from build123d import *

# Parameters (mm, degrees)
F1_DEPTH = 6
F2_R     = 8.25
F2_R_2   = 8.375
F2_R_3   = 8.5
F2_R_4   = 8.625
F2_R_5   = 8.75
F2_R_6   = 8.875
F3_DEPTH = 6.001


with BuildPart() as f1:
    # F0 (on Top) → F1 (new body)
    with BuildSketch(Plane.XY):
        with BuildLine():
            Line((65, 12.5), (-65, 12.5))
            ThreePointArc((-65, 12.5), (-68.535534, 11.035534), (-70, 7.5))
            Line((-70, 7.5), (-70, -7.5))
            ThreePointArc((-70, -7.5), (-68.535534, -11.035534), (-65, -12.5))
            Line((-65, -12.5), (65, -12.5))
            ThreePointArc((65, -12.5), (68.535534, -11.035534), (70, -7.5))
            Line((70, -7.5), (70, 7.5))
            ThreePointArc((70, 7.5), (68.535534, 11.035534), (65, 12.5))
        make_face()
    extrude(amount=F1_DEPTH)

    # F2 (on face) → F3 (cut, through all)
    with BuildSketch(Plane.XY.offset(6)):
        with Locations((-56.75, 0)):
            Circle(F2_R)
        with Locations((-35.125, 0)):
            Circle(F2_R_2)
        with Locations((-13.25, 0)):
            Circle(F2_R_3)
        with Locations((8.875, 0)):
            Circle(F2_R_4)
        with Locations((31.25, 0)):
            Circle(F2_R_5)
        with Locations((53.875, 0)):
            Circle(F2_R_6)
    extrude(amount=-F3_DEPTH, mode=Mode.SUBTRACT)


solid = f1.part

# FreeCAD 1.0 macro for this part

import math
import FreeCAD as App
import Part
import Sketcher
from FreeCAD import Vector
Q = App.Units.Quantity

doc = App.newDocument("Part")
body = doc.addObject("PartDesign::Body", "Body")

sketch1 = body.newObject("Sketcher::SketchObject", "Sketch")
sketch1.AttachmentSupport = (doc.getObject("XY_Plane"), [""])
sketch1.MapMode = "FlatFace"
sketch1.addGeometry(Part.LineSegment(Vector(65, 12.5, 0), Vector(-65, 12.5, 0)), False)
sketch1.addGeometry(Part.ArcOfCircle(Part.Circle(Vector(-65, 7.5, 0), Vector(0, 0, 1), 5), math.radians(90), math.radians(180)), False)
sketch1.addGeometry(Part.LineSegment(Vector(-70, 7.5, 0), Vector(-70, -7.5, 0)), False)
sketch1.addGeometry(Part.ArcOfCircle(Part.Circle(Vector(-65, -7.5, 0), Vector(0, 0, 1), 5), math.radians(180), math.radians(270)), False)
sketch1.addGeometry(Part.LineSegment(Vector(-65, -12.5, 0), Vector(65, -12.5, 0)), False)
sketch1.addGeometry(Part.ArcOfCircle(Part.Circle(Vector(65, -7.5, 0), Vector(0, 0, 1), 5), math.radians(-90), math.radians(0)), False)
sketch1.addGeometry(Part.LineSegment(Vector(70, -7.5, 0), Vector(70, 7.5, 0)), False)
sketch1.addGeometry(Part.ArcOfCircle(Part.Circle(Vector(65, 7.5, 0), Vector(0, 0, 1), 5), math.radians(0), math.radians(90)), False)
sketch1.addConstraint(Sketcher.Constraint("Tangent", 0, 2, 1, 1))
sketch1.addConstraint(Sketcher.Constraint("Tangent", 1, 2, 2, 1))
sketch1.addConstraint(Sketcher.Constraint("Tangent", 2, 2, 3, 1))
sketch1.addConstraint(Sketcher.Constraint("Tangent", 3, 2, 4, 1))
sketch1.addConstraint(Sketcher.Constraint("Tangent", 4, 2, 5, 1))
sketch1.addConstraint(Sketcher.Constraint("Tangent", 5, 2, 6, 1))
sketch1.addConstraint(Sketcher.Constraint("Tangent", 6, 2, 7, 1))
sketch1.addConstraint(Sketcher.Constraint("Tangent", 7, 2, 0, 1))
sketch1.addConstraint(Sketcher.Constraint("Horizontal", 0))
sketch1.addConstraint(Sketcher.Constraint("Vertical", 2))
sketch1.addConstraint(Sketcher.Constraint("Horizontal", 4))
sketch1.addConstraint(Sketcher.Constraint("Vertical", 6))
sketch1.addConstraint(Sketcher.Constraint("Equal", 1, 3))
sketch1.addConstraint(Sketcher.Constraint("Equal", 3, 5))
sketch1.addConstraint(Sketcher.Constraint("Equal", 5, 7))
sketch1.addConstraint(Sketcher.Constraint("Symmetric", 1, 3, 5, 3, -1, 1))
sketch1.addConstraint(Sketcher.Constraint("Radius", 1, Q("5 mm")))
sketch1.addConstraint(Sketcher.Constraint("DistanceX", 0, 2, 0, 1, Q("130 mm")))
sketch1.addConstraint(Sketcher.Constraint("DistanceY", 2, 2, 2, 1, Q("15 mm")))
pad1 = body.newObject("PartDesign::Pad", "Pad")
pad1.Profile = sketch1
pad1.Length = 6

sketch2 = body.newObject("Sketcher::SketchObject", "Sketch001")
sketch2.AttachmentSupport = (doc.getObject("XY_Plane"), [""])
sketch2.MapMode = "FlatFace"
sketch2.AttachmentOffset = App.Placement(Vector(0, 0, 6), App.Rotation())
sketch2.addGeometry(Part.Circle(Vector(-57, 0, 0), Vector(0, 0, 1), 8), False)
sketch2.addGeometry(Part.Circle(Vector(-35, 0, 0), Vector(0, 0, 1), 8), False)
sketch2.addGeometry(Part.Circle(Vector(-13, 0, 0), Vector(0, 0, 1), 8), False)
sketch2.addGeometry(Part.Circle(Vector(9, 0, 0), Vector(0, 0, 1), 9), False)
sketch2.addGeometry(Part.Circle(Vector(31, 0, 0), Vector(0, 0, 1), 9), False)
sketch2.addGeometry(Part.Circle(Vector(54, 0, 0), Vector(0, 0, 1), 9), False)
sketch2.addConstraint(Sketcher.Constraint("PointOnObject", 0, 3, -1))
sketch2.addConstraint(Sketcher.Constraint("PointOnObject", 1, 3, -1))
sketch2.addConstraint(Sketcher.Constraint("PointOnObject", 2, 3, -1))
sketch2.addConstraint(Sketcher.Constraint("PointOnObject", 3, 3, -1))
sketch2.addConstraint(Sketcher.Constraint("PointOnObject", 4, 3, -1))
sketch2.addConstraint(Sketcher.Constraint("PointOnObject", 5, 3, -1))
sketch2.addConstraint(Sketcher.Constraint("Diameter", 2, Q("17 mm")))
sketch2.addConstraint(Sketcher.Constraint("Diameter", 0, Q("16.5 mm")))
sketch2.addConstraint(Sketcher.Constraint("Diameter", 4, Q("17.5 mm")))
sketch2.addConstraint(Sketcher.Constraint("Diameter", 1, Q("16.75 mm")))
sketch2.addConstraint(Sketcher.Constraint("Diameter", 3, Q("17.25 mm")))
sketch2.addConstraint(Sketcher.Constraint("Diameter", 5, Q("17.75 mm")))
sketch2.addConstraint(Sketcher.Constraint("DistanceX", 1, 3, 3, 3, Q("44 mm")))
sketch2.addConstraint(Sketcher.Constraint("DistanceX", 0, 3, 4, 3, Q("88 mm")))
sketch2.addConstraint(Sketcher.Constraint("DistanceX", 3, 3, 5, 3, Q("45 mm")))
sketch2.addConstraint(Sketcher.Constraint("DistanceX", 0, 3, 2, 3, Q("43.5 mm")))
sketch2.addConstraint(Sketcher.Constraint("DistanceX", 0, 3, -1, 1, Q("56.75 mm")))
sketch2.addConstraint(Sketcher.Constraint("DistanceX", 1, 3, -1, 1, Q("35.125 mm")))
pocket1 = body.newObject("PartDesign::Pocket", "Pocket")
pocket1.Profile = sketch2
pocket1.Type = "ThroughAll"

doc.recompute()
